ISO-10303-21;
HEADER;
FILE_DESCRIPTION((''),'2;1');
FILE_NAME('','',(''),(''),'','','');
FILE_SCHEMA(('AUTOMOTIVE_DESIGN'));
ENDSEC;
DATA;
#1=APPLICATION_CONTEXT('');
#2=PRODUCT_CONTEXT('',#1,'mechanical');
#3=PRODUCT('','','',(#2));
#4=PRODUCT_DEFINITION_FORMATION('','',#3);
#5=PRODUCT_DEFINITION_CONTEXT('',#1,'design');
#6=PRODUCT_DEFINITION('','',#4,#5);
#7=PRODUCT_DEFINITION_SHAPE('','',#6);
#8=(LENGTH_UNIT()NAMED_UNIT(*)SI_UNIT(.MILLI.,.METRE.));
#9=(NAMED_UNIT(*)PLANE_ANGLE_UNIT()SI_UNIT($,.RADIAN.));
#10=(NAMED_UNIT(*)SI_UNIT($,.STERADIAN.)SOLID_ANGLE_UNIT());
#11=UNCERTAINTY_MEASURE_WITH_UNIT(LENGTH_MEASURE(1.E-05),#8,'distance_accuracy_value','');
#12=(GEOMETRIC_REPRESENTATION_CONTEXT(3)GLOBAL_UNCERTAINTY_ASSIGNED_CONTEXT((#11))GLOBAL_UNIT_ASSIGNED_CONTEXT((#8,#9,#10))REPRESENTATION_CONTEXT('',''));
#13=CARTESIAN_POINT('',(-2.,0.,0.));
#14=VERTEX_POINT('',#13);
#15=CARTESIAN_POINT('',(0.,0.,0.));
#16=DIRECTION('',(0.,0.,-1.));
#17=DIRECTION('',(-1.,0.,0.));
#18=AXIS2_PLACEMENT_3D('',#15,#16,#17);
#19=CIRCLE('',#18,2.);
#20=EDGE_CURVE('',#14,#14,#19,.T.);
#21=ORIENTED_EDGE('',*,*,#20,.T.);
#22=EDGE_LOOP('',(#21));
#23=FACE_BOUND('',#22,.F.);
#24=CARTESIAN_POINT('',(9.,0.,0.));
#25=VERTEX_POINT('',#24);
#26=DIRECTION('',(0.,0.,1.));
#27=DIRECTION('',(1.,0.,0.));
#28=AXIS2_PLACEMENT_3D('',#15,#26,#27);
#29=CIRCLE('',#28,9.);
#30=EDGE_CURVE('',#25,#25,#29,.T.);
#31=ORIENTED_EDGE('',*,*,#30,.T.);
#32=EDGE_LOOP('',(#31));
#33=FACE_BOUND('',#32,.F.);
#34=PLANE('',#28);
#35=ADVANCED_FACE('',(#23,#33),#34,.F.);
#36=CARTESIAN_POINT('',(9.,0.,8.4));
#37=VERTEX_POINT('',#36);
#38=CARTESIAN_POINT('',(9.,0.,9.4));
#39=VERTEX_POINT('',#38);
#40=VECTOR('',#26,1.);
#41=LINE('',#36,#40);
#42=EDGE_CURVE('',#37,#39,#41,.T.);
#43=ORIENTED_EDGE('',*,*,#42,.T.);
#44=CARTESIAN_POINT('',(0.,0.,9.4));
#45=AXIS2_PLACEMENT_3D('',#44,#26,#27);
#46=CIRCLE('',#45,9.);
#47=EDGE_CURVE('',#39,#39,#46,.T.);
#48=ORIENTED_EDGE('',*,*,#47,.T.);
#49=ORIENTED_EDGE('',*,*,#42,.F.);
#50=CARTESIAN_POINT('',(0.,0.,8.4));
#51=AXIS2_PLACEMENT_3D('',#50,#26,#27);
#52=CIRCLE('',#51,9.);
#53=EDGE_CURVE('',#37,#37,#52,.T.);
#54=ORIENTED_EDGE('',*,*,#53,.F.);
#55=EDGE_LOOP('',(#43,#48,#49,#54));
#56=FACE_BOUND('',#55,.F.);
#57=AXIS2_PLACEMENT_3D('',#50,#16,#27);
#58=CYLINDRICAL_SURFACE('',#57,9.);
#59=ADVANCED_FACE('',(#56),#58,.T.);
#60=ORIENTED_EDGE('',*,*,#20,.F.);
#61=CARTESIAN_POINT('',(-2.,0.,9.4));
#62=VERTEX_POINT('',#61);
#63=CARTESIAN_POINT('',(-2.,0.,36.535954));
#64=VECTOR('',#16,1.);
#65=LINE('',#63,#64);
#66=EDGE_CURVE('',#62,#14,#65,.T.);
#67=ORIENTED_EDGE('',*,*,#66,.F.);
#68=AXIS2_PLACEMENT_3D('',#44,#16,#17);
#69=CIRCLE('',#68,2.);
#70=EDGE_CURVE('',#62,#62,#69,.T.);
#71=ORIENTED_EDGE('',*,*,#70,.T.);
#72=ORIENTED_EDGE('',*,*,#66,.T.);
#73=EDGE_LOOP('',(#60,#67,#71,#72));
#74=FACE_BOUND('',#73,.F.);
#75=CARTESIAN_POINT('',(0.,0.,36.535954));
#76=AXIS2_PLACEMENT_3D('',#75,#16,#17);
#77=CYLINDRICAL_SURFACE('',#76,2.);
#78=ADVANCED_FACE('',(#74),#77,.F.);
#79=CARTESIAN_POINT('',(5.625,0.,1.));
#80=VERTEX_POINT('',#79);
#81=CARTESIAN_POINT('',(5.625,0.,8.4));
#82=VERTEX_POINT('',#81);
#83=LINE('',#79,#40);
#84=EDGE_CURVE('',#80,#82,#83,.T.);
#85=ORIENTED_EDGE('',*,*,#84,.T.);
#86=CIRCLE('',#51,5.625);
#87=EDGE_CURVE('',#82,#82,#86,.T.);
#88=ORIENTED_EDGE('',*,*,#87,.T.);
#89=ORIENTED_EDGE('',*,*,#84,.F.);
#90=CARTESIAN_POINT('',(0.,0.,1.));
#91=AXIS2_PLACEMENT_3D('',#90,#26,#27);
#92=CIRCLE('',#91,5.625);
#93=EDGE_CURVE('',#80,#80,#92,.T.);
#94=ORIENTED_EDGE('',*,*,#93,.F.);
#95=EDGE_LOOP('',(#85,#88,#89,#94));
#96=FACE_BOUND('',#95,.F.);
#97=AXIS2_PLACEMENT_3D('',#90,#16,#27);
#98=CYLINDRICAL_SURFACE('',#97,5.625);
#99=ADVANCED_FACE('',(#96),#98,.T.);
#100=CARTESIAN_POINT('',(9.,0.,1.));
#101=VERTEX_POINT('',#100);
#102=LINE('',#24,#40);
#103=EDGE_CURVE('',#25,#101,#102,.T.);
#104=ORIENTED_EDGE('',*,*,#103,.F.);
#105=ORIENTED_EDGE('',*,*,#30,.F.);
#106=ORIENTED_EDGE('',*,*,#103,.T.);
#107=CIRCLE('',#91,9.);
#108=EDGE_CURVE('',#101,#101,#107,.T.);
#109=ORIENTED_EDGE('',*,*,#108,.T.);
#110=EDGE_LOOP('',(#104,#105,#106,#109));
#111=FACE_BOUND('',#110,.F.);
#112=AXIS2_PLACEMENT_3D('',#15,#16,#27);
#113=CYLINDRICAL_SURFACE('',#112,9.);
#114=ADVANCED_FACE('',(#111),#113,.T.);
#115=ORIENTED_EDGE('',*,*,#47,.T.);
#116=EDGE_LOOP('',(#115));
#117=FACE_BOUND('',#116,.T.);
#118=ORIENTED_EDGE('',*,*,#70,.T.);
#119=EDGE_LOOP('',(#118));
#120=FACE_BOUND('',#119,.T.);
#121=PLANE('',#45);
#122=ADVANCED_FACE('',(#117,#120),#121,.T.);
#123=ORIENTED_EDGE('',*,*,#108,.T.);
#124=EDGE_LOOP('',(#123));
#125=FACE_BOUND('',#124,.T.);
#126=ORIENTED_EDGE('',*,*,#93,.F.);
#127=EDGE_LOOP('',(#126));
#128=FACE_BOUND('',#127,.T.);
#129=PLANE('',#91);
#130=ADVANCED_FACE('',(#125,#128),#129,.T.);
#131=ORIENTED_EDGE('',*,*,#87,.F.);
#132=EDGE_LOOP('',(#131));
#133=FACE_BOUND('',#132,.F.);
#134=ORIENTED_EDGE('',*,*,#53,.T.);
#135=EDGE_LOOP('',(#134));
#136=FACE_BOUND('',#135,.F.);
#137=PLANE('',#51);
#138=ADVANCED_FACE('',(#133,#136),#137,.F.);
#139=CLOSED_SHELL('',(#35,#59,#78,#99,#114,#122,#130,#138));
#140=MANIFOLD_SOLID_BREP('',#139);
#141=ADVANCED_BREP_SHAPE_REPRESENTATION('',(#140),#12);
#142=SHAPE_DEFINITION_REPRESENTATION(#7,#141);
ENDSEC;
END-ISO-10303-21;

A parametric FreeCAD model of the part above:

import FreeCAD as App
import Part
import Sketcher
from FreeCAD import Vector

doc = App.newDocument("Part")
body = doc.addObject("PartDesign::Body", "Body")

# Sketch on XY plane
sketch1 = doc.addObject("Sketcher::SketchObject", "Sketch")
body.addObject(sketch1)
sketch1.AttachmentSupport = (doc.XY_Plane, [""])
sketch1.MapMode = "FlatFace"
sketch1.addGeometry(Part.Circle(Vector(0, 0, 0), Vector(0, 0, 1), 9), False)
sketch1.addConstraint([
    Sketcher.Constraint("Coincident", 0, 3, -1, 1),
    Sketcher.Constraint("Diameter", 0, 18.0),
])
pad1 = doc.addObject("PartDesign::Pad", "Pad")
body.addObject(pad1)
pad1.Profile = sketch1
pad1.Length = 1

# Sketch on XY plane
sketch2 = doc.addObject("Sketcher::SketchObject", "Sketch001")
body.addObject(sketch2)
sketch2.AttachmentSupport = (doc.XY_Plane, [""])
sketch2.MapMode = "FlatFace"
sketch2.AttachmentOffset = App.Placement(Vector(0, 0, 1), App.Rotation())
sketch2.addGeometry(Part.Circle(Vector(0, 0, 0), Vector(0, 0, 1), 6), False)
sketch2.addConstraint([
    Sketcher.Constraint("Coincident", 0, 3, -1, 1),
    Sketcher.Constraint("Diameter", 0, 11.25),
])
pad2 = doc.addObject("PartDesign::Pad", "Pad001")
body.addObject(pad2)
pad2.Profile = sketch2
pad2.Length = 7.4

# Sketch on XY plane
sketch3 = doc.addObject("Sketcher::SketchObject", "Sketch002")
body.addObject(sketch3)
sketch3.AttachmentSupport = (doc.XY_Plane, [""])
sketch3.MapMode = "FlatFace"
sketch3.AttachmentOffset = App.Placement(Vector(0, 0, 8.4), App.Rotation())
sketch3.addGeometry(Part.Circle(Vector(0, 0, 0), Vector(0, 0, 1), 9), False)
sketch3.addConstraint([
    Sketcher.Constraint("Coincident", 0, 3, -1, 1),
    Sketcher.Constraint("Diameter", 0, 18.0),
])
pad3 = doc.addObject("PartDesign::Pad", "Pad002")
body.addObject(pad3)
pad3.Profile = sketch3
pad3.Length = 1

# Sketch on XY plane
sketch4 = doc.addObject("Sketcher::SketchObject", "Sketch003")
body.addObject(sketch4)
sketch4.AttachmentSupport = (doc.XY_Plane, [""])
sketch4.MapMode = "FlatFace"
sketch4.AttachmentOffset = App.Placement(Vector(0, 0, 9.4), App.Rotation())
sketch4.addGeometry(Part.Circle(Vector(0, 0, 0), Vector(0, 0, 1), 2), False)
sketch4.addConstraint([
    Sketcher.Constraint("Coincident", 0, 3, -1, 1),
    Sketcher.Constraint("Diameter", 0, 4.0),
])
doc.recompute()
hole = doc.addObject("PartDesign::Hole", "Hole")
body.addObject(hole)
hole.Profile = sketch4
hole.ThreadType = "None"
hole.Diameter = 4
hole.DepthType = "ThroughAll"

doc.recompute()
